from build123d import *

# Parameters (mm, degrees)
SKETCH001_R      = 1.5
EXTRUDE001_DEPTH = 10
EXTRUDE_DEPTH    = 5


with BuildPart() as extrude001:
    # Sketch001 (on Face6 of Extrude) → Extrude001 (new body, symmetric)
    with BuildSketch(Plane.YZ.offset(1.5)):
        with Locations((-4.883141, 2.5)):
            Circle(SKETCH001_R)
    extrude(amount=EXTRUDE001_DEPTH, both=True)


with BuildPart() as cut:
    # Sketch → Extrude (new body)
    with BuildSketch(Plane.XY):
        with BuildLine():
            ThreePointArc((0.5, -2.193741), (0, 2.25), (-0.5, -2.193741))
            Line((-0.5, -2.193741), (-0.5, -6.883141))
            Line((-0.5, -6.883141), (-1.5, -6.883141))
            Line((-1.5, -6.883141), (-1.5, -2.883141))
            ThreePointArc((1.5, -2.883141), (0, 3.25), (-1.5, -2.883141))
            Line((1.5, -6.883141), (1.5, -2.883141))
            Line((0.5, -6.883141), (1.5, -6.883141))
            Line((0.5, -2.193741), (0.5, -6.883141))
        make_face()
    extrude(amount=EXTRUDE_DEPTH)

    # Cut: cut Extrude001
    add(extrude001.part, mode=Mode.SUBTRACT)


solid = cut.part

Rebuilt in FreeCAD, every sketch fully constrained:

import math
import FreeCAD as App
import Part
import Sketcher

doc = App.newDocument("Part")
body = doc.addObject("PartDesign::Body", "Body")

# Sketch on YZ plane
sketch1 = body.newObject("Sketcher::SketchObject", "Sketch")
sketch1.AttachmentSupport = (doc.getObject("YZ_Plane"), [""])
sketch1.MapMode = "FlatFace"
sketch1.AttachmentOffset = App.Placement(App.Vector(0, 0, 1.5), App.Rotation())
sketch1.addGeometry(Part.Circle(App.Vector(-4.9, 2.5, 0), App.Vector(0, 0, 1), 1.5), False)
sketch1.addConstraint([
    Sketcher.Constraint("Diameter", 0, 3.0),
    Sketcher.Constraint("DistanceY", -1, 1, 0, 3, 2.5),
    Sketcher.Constraint("DistanceX", 0, 3, -1, 1, 4.883141),
])
pad1 = body.newObject("PartDesign::Pad", "Pad")
pad1.Profile = sketch1
pad1.Length = 20
pad1.Midplane = True
body2 = doc.addObject("PartDesign::Body", "Body001")

# Sketch on XY plane
sketch2 = body2.newObject("Sketcher::SketchObject", "Sketch001")
sketch2.AttachmentSupport = (doc.getObject("XY_Plane001"), [""])
sketch2.MapMode = "FlatFace"
sketch2.addGeometry([
    Part.ArcOfCircle(Part.Circle(App.Vector(0, 0, 0), App.Vector(0, 0, 1), 2.2), math.radians(-77), math.radians(257)),  # 0
    Part.LineSegment(App.Vector(0.5, -2.2, 0), App.Vector(0.5, -6.9, 0)),  # 1
    Part.LineSegment(App.Vector(0.5, -6.9, 0), App.Vector(1.5, -6.9, 0)),  # 2
    Part.LineSegment(App.Vector(1.5, -6.9, 0), App.Vector(1.5, -2.9, 0)),  # 3
    Part.ArcOfCircle(Part.Circle(App.Vector(0, 0, 0), App.Vector(0, 0, 1), 3.3), math.radians(-63), math.radians(243)),  # 4
    Part.LineSegment(App.Vector(-1.5, -2.9, 0), App.Vector(-1.5, -6.9, 0)),  # 5
    Part.LineSegment(App.Vector(-1.5, -6.9, 0), App.Vector(-0.5, -6.9, 0)),  # 6
    Part.LineSegment(App.Vector(-0.5, -6.9, 0), App.Vector(-0.5, -2.2, 0)),  # 7
], False)
sketch2.addConstraint([
    Sketcher.Constraint("Coincident", 0, 1, 1, 1),
    Sketcher.Constraint("Coincident", 1, 2, 2, 1),
    Sketcher.Constraint("Coincident", 2, 2, 3, 1),
    Sketcher.Constraint("Coincident", 3, 2, 4, 1),
    Sketcher.Constraint("Coincident", 4, 2, 5, 1),
    Sketcher.Constraint("Coincident", 5, 2, 6, 1),
    Sketcher.Constraint("Coincident", 6, 2, 7, 1),
    Sketcher.Constraint("Coincident", 7, 2, 0, 2),
    Sketcher.Constraint("Vertical", 1),
    Sketcher.Constraint("Horizontal", 2),
    Sketcher.Constraint("Vertical", 3),
    Sketcher.Constraint("Vertical", 5),
    Sketcher.Constraint("Horizontal", 6),
    Sketcher.Constraint("Vertical", 7),
    Sketcher.Constraint("Coincident", 0, 3, -1, 1),
    Sketcher.Constraint("Coincident", 4, 3, -1, 1),
    Sketcher.Constraint("Symmetric", 2, 2, 5, 2, -2),
    Sketcher.Constraint("Horizontal", 0, 1, 7, 2),
    Sketcher.Constraint("DistanceX", 2, 1, 2, 2, 1.0),
    Sketcher.Constraint("DistanceY", 3, 1, 3, 2, 4.0),
    Sketcher.Constraint("Radius", 0, 2.25),
    Sketcher.Constraint("Radius", 4, 3.25),
    Sketcher.Constraint("DistanceX", 4, 2, 0, 1, 2.0),
])
pad2 = body2.newObject("PartDesign::Pad", "Pad001")
pad2.Profile = sketch2
pad2.Length = 5
doc.recompute()

boolean = body2.newObject("PartDesign::Boolean", "Boolean")
boolean.Type = "Cut"
boolean.addObjects([body])

doc.recompute()
